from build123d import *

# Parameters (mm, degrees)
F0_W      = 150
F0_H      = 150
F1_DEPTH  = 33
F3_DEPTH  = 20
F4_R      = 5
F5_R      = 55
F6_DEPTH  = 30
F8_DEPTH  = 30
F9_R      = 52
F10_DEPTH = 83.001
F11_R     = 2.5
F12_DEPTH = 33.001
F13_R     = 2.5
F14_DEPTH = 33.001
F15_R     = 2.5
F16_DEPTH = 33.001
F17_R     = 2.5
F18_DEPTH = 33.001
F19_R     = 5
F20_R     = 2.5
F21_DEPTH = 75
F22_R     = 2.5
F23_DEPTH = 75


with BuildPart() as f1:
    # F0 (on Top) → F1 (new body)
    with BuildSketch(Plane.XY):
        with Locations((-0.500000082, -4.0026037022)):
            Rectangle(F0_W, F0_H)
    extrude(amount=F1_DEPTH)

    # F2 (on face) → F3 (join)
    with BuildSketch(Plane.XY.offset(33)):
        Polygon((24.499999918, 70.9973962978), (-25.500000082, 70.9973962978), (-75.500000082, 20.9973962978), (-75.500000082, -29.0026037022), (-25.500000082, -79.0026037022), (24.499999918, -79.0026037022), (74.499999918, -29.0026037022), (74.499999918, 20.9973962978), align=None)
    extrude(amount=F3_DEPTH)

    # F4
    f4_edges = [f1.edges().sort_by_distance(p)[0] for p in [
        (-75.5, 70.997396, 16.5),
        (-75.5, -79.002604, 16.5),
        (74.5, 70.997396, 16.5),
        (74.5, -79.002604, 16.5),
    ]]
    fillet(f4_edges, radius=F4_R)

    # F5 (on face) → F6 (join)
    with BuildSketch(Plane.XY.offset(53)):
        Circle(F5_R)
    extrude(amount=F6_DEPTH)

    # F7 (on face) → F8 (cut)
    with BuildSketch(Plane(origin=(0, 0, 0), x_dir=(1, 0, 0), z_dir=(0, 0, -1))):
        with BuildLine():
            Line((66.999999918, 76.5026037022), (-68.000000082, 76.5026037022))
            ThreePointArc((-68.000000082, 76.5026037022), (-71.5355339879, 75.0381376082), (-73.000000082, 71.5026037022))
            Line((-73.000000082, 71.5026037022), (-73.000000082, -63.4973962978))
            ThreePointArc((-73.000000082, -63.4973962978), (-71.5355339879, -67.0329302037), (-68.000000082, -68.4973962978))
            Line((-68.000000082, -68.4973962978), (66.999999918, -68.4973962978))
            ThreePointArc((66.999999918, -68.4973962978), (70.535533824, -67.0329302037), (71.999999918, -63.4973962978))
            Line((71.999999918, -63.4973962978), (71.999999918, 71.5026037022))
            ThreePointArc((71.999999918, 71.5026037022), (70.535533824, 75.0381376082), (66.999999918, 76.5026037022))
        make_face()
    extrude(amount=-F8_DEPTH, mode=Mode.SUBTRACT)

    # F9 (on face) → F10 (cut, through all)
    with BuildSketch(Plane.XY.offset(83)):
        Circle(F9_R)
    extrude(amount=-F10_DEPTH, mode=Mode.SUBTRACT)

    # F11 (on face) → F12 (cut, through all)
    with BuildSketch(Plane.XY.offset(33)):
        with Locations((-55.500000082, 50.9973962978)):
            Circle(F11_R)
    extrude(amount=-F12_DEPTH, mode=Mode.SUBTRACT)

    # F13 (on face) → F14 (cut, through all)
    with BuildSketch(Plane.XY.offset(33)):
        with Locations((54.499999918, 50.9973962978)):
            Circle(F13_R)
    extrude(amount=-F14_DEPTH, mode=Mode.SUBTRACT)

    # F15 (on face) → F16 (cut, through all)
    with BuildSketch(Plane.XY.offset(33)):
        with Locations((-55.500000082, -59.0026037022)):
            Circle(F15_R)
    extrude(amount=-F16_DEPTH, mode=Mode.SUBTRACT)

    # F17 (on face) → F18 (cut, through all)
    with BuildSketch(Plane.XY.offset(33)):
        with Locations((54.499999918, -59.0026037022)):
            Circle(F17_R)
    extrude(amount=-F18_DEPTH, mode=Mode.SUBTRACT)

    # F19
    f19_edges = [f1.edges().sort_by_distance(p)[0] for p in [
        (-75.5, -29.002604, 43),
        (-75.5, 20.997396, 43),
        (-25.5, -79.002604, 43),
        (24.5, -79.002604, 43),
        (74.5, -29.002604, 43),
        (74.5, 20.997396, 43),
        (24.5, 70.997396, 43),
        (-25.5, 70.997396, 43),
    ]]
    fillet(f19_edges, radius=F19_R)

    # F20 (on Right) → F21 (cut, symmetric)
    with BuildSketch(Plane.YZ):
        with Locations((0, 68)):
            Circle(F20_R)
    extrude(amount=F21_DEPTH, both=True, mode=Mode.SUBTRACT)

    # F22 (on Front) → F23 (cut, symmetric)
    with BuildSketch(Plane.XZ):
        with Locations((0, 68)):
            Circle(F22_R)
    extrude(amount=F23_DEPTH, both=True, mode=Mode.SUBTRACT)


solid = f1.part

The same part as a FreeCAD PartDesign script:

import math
import FreeCAD as App
import Part
import Sketcher

V = App.Vector


def edges_at(feature, points):
    """Names of the edges that pass closest to the given points."""
    edges = feature.Shape.Edges
    near = lambda p: min(range(len(edges)), key=lambda i: edges[i].distToShape(Part.Vertex(*p))[0])
    return sorted({f"Edge{near(p) + 1}" for p in points})

doc = App.newDocument("Part")
params = doc.addObject("Spreadsheet::Sheet", "Params")
for row, (alias, value) in enumerate([
    ("sketch1_width", "150 mm"),
    ("pad1_length", "33 mm"),
    ("sketch2_width", "50 mm"),
    ("pad2_length", "20 mm"),
    ("fillet_radius", "5 mm"),
    ("sketch3_diameter", "110 mm"),
    ("pad3_length", "30 mm"),
    ("sketch4_radius", "5 mm"),
    ("sketch4_width", "135 mm"),
    ("pocket1_length", "30 mm"),
    ("sketch5_diameter", "104 mm"),
    ("sketch6_diameter", "5 mm"),
    ("sketch7_diameter", "5 mm"),
    ("sketch8_diameter", "5 mm"),
    ("sketch9_diameter", "5 mm"),
    ("fillet2_radius", "5 mm"),
    ("sketch10_diameter", "5 mm"),
    ("pocket7_length", "150 mm"),
    ("sketch11_diameter", "5 mm"),
    ("pocket8_length", "150 mm"),
], start=1):
    params.set(f"A{row}", alias)
    params.set(f"B{row}", "=" + value)
    params.setAlias(f"B{row}", alias)

body = doc.addObject("PartDesign::Body", "Body")

# Sketch on XY plane
sketch1 = body.newObject("Sketcher::SketchObject", "Sketch")
sketch1.AttachmentSupport = (doc.getObject("XY_Plane"), [""])
sketch1.MapMode = "FlatFace"
sketch1.addGeometry(Part.LineSegment(V(-76, 71, 0), V(-76, -79, 0)), False)
sketch1.addGeometry(Part.LineSegment(V(-76, -79, 0), V(74, -79, 0)), False)
sketch1.addGeometry(Part.LineSegment(V(74, -79, 0), V(74, 71, 0)), False)
sketch1.addGeometry(Part.LineSegment(V(74, 71, 0), V(-76, 71, 0)), False)
sketch1.addConstraint(Sketcher.Constraint("Coincident", 0, 2, 1, 1))
sketch1.addConstraint(Sketcher.Constraint("Coincident", 1, 2, 2, 1))
sketch1.addConstraint(Sketcher.Constraint("Coincident", 2, 2, 3, 1))
sketch1.addConstraint(Sketcher.Constraint("Coincident", 3, 2, 0, 1))
sketch1.addConstraint(Sketcher.Constraint("Vertical", 0))
sketch1.addConstraint(Sketcher.Constraint("Horizontal", 1))
sketch1.addConstraint(Sketcher.Constraint("Vertical", 2))
sketch1.addConstraint(Sketcher.Constraint("Horizontal", 3))
sketch1.addConstraint(Sketcher.Constraint("Equal", 3, 0))
sketch1.addConstraint(Sketcher.Constraint("DistanceX", 1, 1, 1, 2, 150.0))
sketch1.addConstraint(Sketcher.Constraint("DistanceX", 0, 2, -1, 1, 75.5))
sketch1.addConstraint(Sketcher.Constraint("DistanceY", 0, 2, -1, 1, 79.002604))
sketch1.setExpression("Constraints[9]", "Params.sketch1_width")
pad1 = body.newObject("PartDesign::Pad", "Pad")
pad1.Profile = sketch1
pad1.setExpression("Length", "Params.pad1_length")

# Sketch on XY plane
sketch2 = body.newObject("Sketcher::SketchObject", "Sketch001")
sketch2.AttachmentSupport = (doc.getObject("XY_Plane"), [""])
sketch2.MapMode = "FlatFace"
sketch2.AttachmentOffset = App.Placement(V(0, 0, 33), App.Rotation())
sketch2.addGeometry(Part.LineSegment(V(24, 71, 0), V(-26, 71, 0)), False)
sketch2.addGeometry(Part.LineSegment(V(-26, 71, 0), V(-76, 21, 0)), False)
sketch2.addGeometry(Part.LineSegment(V(-76, 21, 0), V(-76, -29, 0)), False)
sketch2.addGeometry(Part.LineSegment(V(-76, -29, 0), V(-26, -79, 0)), False)
sketch2.addGeometry(Part.LineSegment(V(-26, -79, 0), V(24, -79, 0)), False)
sketch2.addGeometry(Part.LineSegment(V(24, -79, 0), V(74, -29, 0)), False)
sketch2.addGeometry(Part.LineSegment(V(74, -29, 0), V(74, 21, 0)), False)
sketch2.addGeometry(Part.LineSegment(V(74, 21, 0), V(24, 71, 0)), False)
sketch2.addConstraint(Sketcher.Constraint("Coincident", 0, 2, 1, 1))
sketch2.addConstraint(Sketcher.Constraint("Coincident", 1, 2, 2, 1))
sketch2.addConstraint(Sketcher.Constraint("Coincident", 2, 2, 3, 1))
sketch2.addConstraint(Sketcher.Constraint("Coincident", 3, 2, 4, 1))
sketch2.addConstraint(Sketcher.Constraint("Coincident", 4, 2, 5, 1))
sketch2.addConstraint(Sketcher.Constraint("Coincident", 5, 2, 6, 1))
sketch2.addConstraint(Sketcher.Constraint("Coincident", 6, 2, 7, 1))
sketch2.addConstraint(Sketcher.Constraint("Coincident", 7, 2, 0, 1))
sketch2.addConstraint(Sketcher.Constraint("Horizontal", 0))
sketch2.addConstraint(Sketcher.Constraint("Vertical", 2))
sketch2.addConstraint(Sketcher.Constraint("Horizontal", 4))
sketch2.addConstraint(Sketcher.Constraint("Vertical", 6))
sketch2.addConstraint(Sketcher.Constraint("Perpendicular", 1, 3))
sketch2.addConstraint(Sketcher.Constraint("Perpendicular", 3, 5))
sketch2.addConstraint(Sketcher.Constraint("Perpendicular", 5, 7))
sketch2.addConstraint(Sketcher.Constraint("Horizontal", 2, 2, 5, 2))
sketch2.addConstraint(Sketcher.Constraint("Horizontal", 1, 2, 6, 2))
sketch2.addConstraint(Sketcher.Constraint("Vertical", 0, 2, 3, 2))
sketch2.addConstraint(Sketcher.Constraint("Vertical", 4, 2, 7, 2))
sketch2.addConstraint(Sketcher.Constraint("Equal", 4, 2))
sketch2.addConstraint(Sketcher.Constraint("DistanceX", 0, 2, 0, 1, 50.0))
sketch2.addConstraint(Sketcher.Constraint("DistanceX", 1, 2, 0, 2, 50.0))
sketch2.addConstraint(Sketcher.Constraint("DistanceX", 0, 2, -1, 1, 25.5))
sketch2.addConstraint(Sketcher.Constraint("DistanceY", -1, 1, 0, 2, 70.997396))
sketch2.setExpression("Constraints[20]", "Params.sketch2_width")
pad2 = body.newObject("PartDesign::Pad", "Pad001")
pad2.Profile = sketch2
pad2.setExpression("Length", "Params.pad2_length")
doc.recompute()

fillet = body.newObject("PartDesign::Fillet", "Fillet")
fillet.Base = (pad2, edges_at(pad2, [
    (-75.5, 70.997, 16.5),
    (-75.5, -79.003, 16.5),
    (74.5, 70.997, 16.5),
    (74.5, -79.003, 16.5),
]))
fillet.setExpression("Radius", "Params.fillet_radius")

# Sketch on XY plane
sketch3 = body.newObject("Sketcher::SketchObject", "Sketch002")
sketch3.AttachmentSupport = (doc.getObject("XY_Plane"), [""])
sketch3.MapMode = "FlatFace"
sketch3.AttachmentOffset = App.Placement(V(0, 0, 53), App.Rotation())
sketch3.addGeometry(Part.Circle(V(0, 0, 0), V(0, 0, 1), 55), False)
sketch3.addConstraint(Sketcher.Constraint("Coincident", 0, 3, -1, 1))
sketch3.addConstraint(Sketcher.Constraint("Diameter", 0, 110.0))
sketch3.setExpression("Constraints[1]", "Params.sketch3_diameter")
pad3 = body.newObject("PartDesign::Pad", "Pad002")
pad3.Profile = sketch3
pad3.setExpression("Length", "Params.pad3_length")

# Sketch on XY plane
sketch4 = body.newObject("Sketcher::SketchObject", "Sketch003")
sketch4.AttachmentSupport = (doc.getObject("XY_Plane"), [""])
sketch4.MapMode = "FlatFace"
sketch4.addGeometry(Part.LineSegment(V(67, -77, 0), V(-68, -77, 0)), False)
sketch4.addGeometry(Part.ArcOfCircle(Part.Circle(V(-68, -72, 0), V(0, 0, 1), 5), math.radians(180), math.radians(270)), False)
sketch4.addGeometry(Part.LineSegment(V(-73, -72, 0), V(-73, 63, 0)), False)
sketch4.addGeometry(Part.ArcOfCircle(Part.Circle(V(-68, 63, 0), V(0, 0, 1), 5), math.radians(90), math.radians(180)), False)
sketch4.addGeometry(Part.LineSegment(V(-68, 68, 0), V(67, 68, 0)), False)
sketch4.addGeometry(Part.ArcOfCircle(Part.Circle(V(67, 63, 0), V(0, 0, 1), 5), math.radians(0), math.radians(90)), False)
sketch4.addGeometry(Part.LineSegment(V(72, 63, 0), V(72, -72, 0)), False)
sketch4.addGeometry(Part.ArcOfCircle(Part.Circle(V(67, -72, 0), V(0, 0, 1), 5), math.radians(-90), math.radians(0)), False)
sketch4.addConstraint(Sketcher.Constraint("Tangent", 0, 2, 1, 2))
sketch4.addConstraint(Sketcher.Constraint("Tangent", 1, 1, 2, 1))
sketch4.addConstraint(Sketcher.Constraint("Tangent", 2, 2, 3, 2))
sketch4.addConstraint(Sketcher.Constraint("Tangent", 3, 1, 4, 1))
sketch4.addConstraint(Sketcher.Constraint("Tangent", 4, 2, 5, 2))
sketch4.addConstraint(Sketcher.Constraint("Tangent", 5, 1, 6, 1))
sketch4.addConstraint(Sketcher.Constraint("Tangent", 6, 2, 7, 2))
sketch4.addConstraint(Sketcher.Constraint("Tangent", 7, 1, 0, 1))
sketch4.addConstraint(Sketcher.Constraint("Horizontal", 0))
sketch4.addConstraint(Sketcher.Constraint("Vertical", 2))
sketch4.addConstraint(Sketcher.Constraint("Horizontal", 4))
sketch4.addConstraint(Sketcher.Constraint("Vertical", 6))
sketch4.addConstraint(Sketcher.Constraint("Equal", 1, 3))
sketch4.addConstraint(Sketcher.Constraint("Equal", 3, 5))
sketch4.addConstraint(Sketcher.Constraint("Equal", 5, 7))
sketch4.addConstraint(Sketcher.Constraint("Equal", 4, 2))
sketch4.addConstraint(Sketcher.Constraint("Radius", 1, 5.0))
sketch4.addConstraint(Sketcher.Constraint("DistanceX", 0, 2, 0, 1, 135.0))
sketch4.addConstraint(Sketcher.Constraint("DistanceX", 1, 3, -1, 1, 68.0))
sketch4.addConstraint(Sketcher.Constraint("DistanceY", 1, 3, -1, 1, 71.502604))
sketch4.setExpression("Constraints[16]", "Params.sketch4_radius")
sketch4.setExpression("Constraints[17]", "Params.sketch4_width")
pocket1 = body.newObject("PartDesign::Pocket", "Pocket")
pocket1.Profile = sketch4
pocket1.setExpression("Length", "Params.pocket1_length")
pocket1.Reversed = True

# Sketch on XY plane
sketch5 = body.newObject("Sketcher::SketchObject", "Sketch004")
sketch5.AttachmentSupport = (doc.getObject("XY_Plane"), [""])
sketch5.MapMode = "FlatFace"
sketch5.AttachmentOffset = App.Placement(V(0, 0, 83), App.Rotation())
sketch5.addGeometry(Part.Circle(V(0, 0, 0), V(0, 0, 1), 52), False)
sketch5.addConstraint(Sketcher.Constraint("Coincident", 0, 3, -1, 1))
sketch5.addConstraint(Sketcher.Constraint("Diameter", 0, 104.0))
sketch5.setExpression("Constraints[1]", "Params.sketch5_diameter")
pocket2 = body.newObject("PartDesign::Pocket", "Pocket001")
pocket2.Profile = sketch5
pocket2.Type = "ThroughAll"

# Sketch on XY plane
sketch6 = body.newObject("Sketcher::SketchObject", "Sketch005")
sketch6.AttachmentSupport = (doc.getObject("XY_Plane"), [""])
sketch6.MapMode = "FlatFace"
sketch6.AttachmentOffset = App.Placement(V(0, 0, 33), App.Rotation())
sketch6.addGeometry(Part.Circle(V(-55.5, 51, 0), V(0, 0, 1), 2.5), False)
sketch6.addConstraint(Sketcher.Constraint("Diameter", 0, 5.0))
sketch6.addConstraint(Sketcher.Constraint("DistanceX", 0, 3, -1, 1, 55.5))
sketch6.addConstraint(Sketcher.Constraint("DistanceY", -1, 1, 0, 3, 50.997396))
sketch6.setExpression("Constraints[0]", "Params.sketch6_diameter")
pocket3 = body.newObject("PartDesign::Pocket", "Pocket002")
pocket3.Profile = sketch6
pocket3.Type = "ThroughAll"

# Sketch on XY plane
sketch7 = body.newObject("Sketcher::SketchObject", "Sketch006")
sketch7.AttachmentSupport = (doc.getObject("XY_Plane"), [""])
sketch7.MapMode = "FlatFace"
sketch7.AttachmentOffset = App.Placement(V(0, 0, 33), App.Rotation())
sketch7.addGeometry(Part.Circle(V(54.5, 51, 0), V(0, 0, 1), 2.5), False)
sketch7.addConstraint(Sketcher.Constraint("Diameter", 0, 5.0))
sketch7.addConstraint(Sketcher.Constraint("DistanceX", -1, 1, 0, 3, 54.5))
sketch7.addConstraint(Sketcher.Constraint("DistanceY", -1, 1, 0, 3, 50.997396))
sketch7.setExpression("Constraints[0]", "Params.sketch7_diameter")
pocket4 = body.newObject("PartDesign::Pocket", "Pocket003")
pocket4.Profile = sketch7
pocket4.Type = "ThroughAll"

# Sketch on XY plane
sketch8 = body.newObject("Sketcher::SketchObject", "Sketch007")
sketch8.AttachmentSupport = (doc.getObject("XY_Plane"), [""])
sketch8.MapMode = "FlatFace"
sketch8.AttachmentOffset = App.Placement(V(0, 0, 33), App.Rotation())
sketch8.addGeometry(Part.Circle(V(-55.5, -59, 0), V(0, 0, 1), 2.5), False)
sketch8.addConstraint(Sketcher.Constraint("Diameter", 0, 5.0))
sketch8.addConstraint(Sketcher.Constraint("DistanceX", 0, 3, -1, 1, 55.5))
sketch8.addConstraint(Sketcher.Constraint("DistanceY", 0, 3, -1, 1, 59.002604))
sketch8.setExpression("Constraints[0]", "Params.sketch8_diameter")
pocket5 = body.newObject("PartDesign::Pocket", "Pocket004")
pocket5.Profile = sketch8
pocket5.Type = "ThroughAll"

# Sketch on XY plane
sketch9 = body.newObject("Sketcher::SketchObject", "Sketch008")
sketch9.AttachmentSupport = (doc.getObject("XY_Plane"), [""])
sketch9.MapMode = "FlatFace"
sketch9.AttachmentOffset = App.Placement(V(0, 0, 33), App.Rotation())
sketch9.addGeometry(Part.Circle(V(54.5, -59, 0), V(0, 0, 1), 2.5), False)
sketch9.addConstraint(Sketcher.Constraint("Diameter", 0, 5.0))
sketch9.addConstraint(Sketcher.Constraint("DistanceX", -1, 1, 0, 3, 54.5))
sketch9.addConstraint(Sketcher.Constraint("DistanceY", 0, 3, -1, 1, 59.002604))
sketch9.setExpression("Constraints[0]", "Params.sketch9_diameter")
pocket6 = body.newObject("PartDesign::Pocket", "Pocket005")
pocket6.Profile = sketch9
pocket6.Type = "ThroughAll"
doc.recompute()

fillet2 = body.newObject("PartDesign::Fillet", "Fillet001")
fillet2.Base = (pocket6, edges_at(pocket6, [
    (-75.5, -29.003, 43),
    (-75.5, 20.997, 43),
    (-25.5, -79.003, 43),
    (24.5, -79.003, 43),
    (74.5, -29.003, 43),
    (74.5, 20.997, 43),
    (24.5, 70.997, 43),
    (-25.5, 70.997, 43),
]))
fillet2.setExpression("Radius", "Params.fillet2_radius")

# Sketch on YZ plane
sketch10 = body.newObject("Sketcher::SketchObject", "Sketch009")
sketch10.AttachmentSupport = (doc.getObject("YZ_Plane"), [""])
sketch10.MapMode = "FlatFace"
sketch10.addGeometry(Part.Circle(V(0, 68, 0), V(0, 0, 1), 2.5), False)
sketch10.addConstraint(Sketcher.Constraint("PointOnObject", 0, 3, -2))
sketch10.addConstraint(Sketcher.Constraint("Diameter", 0, 5.0))
sketch10.addConstraint(Sketcher.Constraint("DistanceY", -1, 1, 0, 3, 68.0))
sketch10.setExpression("Constraints[1]", "Params.sketch10_diameter")
pocket7 = body.newObject("PartDesign::Pocket", "Pocket006")
pocket7.Profile = sketch10
pocket7.setExpression("Length", "Params.pocket7_length")
pocket7.Midplane = True

# Sketch on XZ plane
sketch11 = body.newObject("Sketcher::SketchObject", "Sketch010")
sketch11.AttachmentSupport = (doc.getObject("XZ_Plane"), [""])
sketch11.MapMode = "FlatFace"
sketch11.addGeometry(Part.Circle(V(0, 68, 0), V(0, 0, 1), 2.5), False)
sketch11.addConstraint(Sketcher.Constraint("PointOnObject", 0, 3, -2))
sketch11.addConstraint(Sketcher.Constraint("Diameter", 0, 5.0))
sketch11.addConstraint(Sketcher.Constraint("DistanceY", -1, 1, 0, 3, 68.0))
sketch11.setExpression("Constraints[1]", "Params.sketch11_diameter")
pocket8 = body.newObject("PartDesign::Pocket", "Pocket007")
pocket8.Profile = sketch11
pocket8.setExpression("Length", "Params.pocket8_length")
pocket8.Midplane = True

doc.recompute()
